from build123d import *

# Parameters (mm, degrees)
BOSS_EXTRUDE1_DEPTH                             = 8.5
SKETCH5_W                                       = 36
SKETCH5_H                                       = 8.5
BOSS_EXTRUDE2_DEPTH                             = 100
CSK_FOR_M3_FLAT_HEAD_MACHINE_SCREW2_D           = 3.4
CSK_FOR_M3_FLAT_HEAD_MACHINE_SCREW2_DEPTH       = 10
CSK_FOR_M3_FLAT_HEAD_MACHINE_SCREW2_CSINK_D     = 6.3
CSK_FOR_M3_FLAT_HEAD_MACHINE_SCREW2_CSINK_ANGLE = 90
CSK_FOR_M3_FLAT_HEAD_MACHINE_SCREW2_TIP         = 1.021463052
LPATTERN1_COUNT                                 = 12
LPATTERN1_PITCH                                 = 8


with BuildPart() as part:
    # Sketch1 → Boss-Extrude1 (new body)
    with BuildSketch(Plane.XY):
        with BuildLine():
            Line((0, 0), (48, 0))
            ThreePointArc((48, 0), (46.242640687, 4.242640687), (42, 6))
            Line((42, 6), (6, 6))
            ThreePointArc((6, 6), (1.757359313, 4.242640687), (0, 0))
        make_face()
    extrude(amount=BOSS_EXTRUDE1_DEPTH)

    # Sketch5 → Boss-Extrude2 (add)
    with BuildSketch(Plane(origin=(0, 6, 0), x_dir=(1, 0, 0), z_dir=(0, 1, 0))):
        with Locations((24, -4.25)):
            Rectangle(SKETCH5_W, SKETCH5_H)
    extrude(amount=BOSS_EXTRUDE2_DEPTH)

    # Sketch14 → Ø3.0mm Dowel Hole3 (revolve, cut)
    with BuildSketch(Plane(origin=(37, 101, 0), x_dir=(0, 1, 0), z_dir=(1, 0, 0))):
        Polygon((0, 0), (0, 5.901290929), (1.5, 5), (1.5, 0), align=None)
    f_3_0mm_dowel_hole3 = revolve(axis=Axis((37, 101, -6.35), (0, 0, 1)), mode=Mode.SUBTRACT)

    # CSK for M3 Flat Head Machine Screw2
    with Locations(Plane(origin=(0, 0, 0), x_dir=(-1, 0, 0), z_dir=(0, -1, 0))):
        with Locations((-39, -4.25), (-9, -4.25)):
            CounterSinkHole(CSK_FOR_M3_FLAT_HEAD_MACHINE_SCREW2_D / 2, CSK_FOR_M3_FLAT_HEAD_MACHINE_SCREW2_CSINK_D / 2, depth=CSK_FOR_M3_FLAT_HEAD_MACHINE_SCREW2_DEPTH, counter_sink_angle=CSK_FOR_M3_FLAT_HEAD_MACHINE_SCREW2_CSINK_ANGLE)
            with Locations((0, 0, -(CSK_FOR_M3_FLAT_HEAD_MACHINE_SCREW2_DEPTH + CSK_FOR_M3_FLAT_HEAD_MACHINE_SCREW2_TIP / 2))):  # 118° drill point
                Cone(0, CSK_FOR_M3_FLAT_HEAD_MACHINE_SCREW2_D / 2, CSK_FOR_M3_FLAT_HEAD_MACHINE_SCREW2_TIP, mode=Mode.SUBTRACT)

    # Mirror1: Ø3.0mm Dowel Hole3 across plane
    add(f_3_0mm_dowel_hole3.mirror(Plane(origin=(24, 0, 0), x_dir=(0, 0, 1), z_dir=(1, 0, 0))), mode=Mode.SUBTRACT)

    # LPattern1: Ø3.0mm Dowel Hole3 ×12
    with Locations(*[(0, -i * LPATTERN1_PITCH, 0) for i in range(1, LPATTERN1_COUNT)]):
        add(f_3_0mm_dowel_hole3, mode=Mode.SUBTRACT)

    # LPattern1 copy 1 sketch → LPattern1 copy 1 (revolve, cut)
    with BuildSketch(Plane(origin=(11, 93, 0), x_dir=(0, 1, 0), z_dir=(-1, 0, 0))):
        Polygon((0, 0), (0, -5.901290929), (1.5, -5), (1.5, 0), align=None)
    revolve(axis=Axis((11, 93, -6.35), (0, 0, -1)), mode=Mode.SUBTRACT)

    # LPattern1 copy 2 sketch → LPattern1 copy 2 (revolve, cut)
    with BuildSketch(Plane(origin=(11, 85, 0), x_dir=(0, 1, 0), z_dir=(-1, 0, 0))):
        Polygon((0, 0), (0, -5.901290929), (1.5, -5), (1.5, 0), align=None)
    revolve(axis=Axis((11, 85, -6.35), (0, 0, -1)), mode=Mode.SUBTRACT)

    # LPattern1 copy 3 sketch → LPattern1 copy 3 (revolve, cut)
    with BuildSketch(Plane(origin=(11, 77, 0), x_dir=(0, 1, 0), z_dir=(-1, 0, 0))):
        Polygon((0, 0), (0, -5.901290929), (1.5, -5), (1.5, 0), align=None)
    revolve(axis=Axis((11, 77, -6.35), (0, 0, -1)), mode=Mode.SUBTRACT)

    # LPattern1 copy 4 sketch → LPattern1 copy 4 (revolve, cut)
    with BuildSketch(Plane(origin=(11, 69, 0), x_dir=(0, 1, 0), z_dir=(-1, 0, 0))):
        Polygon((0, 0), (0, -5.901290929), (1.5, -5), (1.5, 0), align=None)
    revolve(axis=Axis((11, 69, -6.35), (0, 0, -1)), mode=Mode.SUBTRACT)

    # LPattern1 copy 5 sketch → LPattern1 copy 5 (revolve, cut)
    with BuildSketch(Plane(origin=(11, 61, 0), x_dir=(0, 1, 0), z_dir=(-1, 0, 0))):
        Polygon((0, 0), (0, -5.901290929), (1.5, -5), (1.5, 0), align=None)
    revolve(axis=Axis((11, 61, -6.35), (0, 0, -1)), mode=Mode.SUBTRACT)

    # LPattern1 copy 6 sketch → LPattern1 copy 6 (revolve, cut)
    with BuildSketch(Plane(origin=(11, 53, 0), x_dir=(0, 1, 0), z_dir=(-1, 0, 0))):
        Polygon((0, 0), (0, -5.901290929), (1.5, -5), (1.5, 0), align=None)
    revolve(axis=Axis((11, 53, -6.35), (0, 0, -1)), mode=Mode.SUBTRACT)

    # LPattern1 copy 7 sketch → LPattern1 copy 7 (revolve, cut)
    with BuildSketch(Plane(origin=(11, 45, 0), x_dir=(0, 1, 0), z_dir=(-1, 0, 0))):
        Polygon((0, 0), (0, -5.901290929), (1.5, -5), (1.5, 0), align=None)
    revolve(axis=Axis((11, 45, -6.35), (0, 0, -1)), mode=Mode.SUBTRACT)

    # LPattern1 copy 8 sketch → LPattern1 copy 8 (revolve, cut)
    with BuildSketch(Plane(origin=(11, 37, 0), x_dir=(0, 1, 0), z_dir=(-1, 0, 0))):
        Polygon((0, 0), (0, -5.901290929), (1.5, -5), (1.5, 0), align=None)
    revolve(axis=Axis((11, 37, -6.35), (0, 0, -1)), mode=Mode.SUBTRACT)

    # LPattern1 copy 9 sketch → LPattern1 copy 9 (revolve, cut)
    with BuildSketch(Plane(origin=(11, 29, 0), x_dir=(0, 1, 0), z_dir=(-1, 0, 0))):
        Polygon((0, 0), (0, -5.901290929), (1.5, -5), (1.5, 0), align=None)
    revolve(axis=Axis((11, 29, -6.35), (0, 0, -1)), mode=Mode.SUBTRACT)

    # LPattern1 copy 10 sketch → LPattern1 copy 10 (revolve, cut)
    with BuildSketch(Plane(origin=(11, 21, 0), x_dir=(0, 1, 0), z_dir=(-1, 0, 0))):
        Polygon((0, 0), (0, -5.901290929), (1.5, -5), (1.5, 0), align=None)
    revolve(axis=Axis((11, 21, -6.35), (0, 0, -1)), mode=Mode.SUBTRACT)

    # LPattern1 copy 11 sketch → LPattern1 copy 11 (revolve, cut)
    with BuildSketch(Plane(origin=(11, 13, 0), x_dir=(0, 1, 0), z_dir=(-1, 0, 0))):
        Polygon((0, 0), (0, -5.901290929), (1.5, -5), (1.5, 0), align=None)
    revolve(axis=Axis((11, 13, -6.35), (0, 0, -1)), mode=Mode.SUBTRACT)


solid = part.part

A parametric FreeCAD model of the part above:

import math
import FreeCAD as App
import Part
import Sketcher
Q = App.Units.Quantity

doc = App.newDocument("Part")
body = doc.addObject("PartDesign::Body", "Body")

# Sketch on XY plane
sketch1 = doc.addObject("Sketcher::SketchObject", "Sketch")
body.addObject(sketch1)
sketch1.AttachmentSupport = (doc.XY_Plane, [""])
sketch1.MapMode = "FlatFace"
sketch1.addGeometry([
    Part.LineSegment(App.Vector(0, 0, 0), App.Vector(48, 0, 0)),
    Part.ArcOfCircle(Part.Circle(App.Vector(42, 0, 0), App.Vector(0, 0, 1), 6), math.radians(0), math.radians(90)),
    Part.LineSegment(App.Vector(42, 6, 0), App.Vector(6, 6, 0)),
    Part.ArcOfCircle(Part.Circle(App.Vector(6, 0, 0), App.Vector(0, 0, 1), 6), math.radians(90), math.radians(180)),
], False)
sketch1.addConstraint([
    Sketcher.Constraint("Coincident", 0, 2, 1, 1),
    Sketcher.Constraint("Tangent", 1, 2, 2, 1),
    Sketcher.Constraint("Tangent", 2, 2, 3, 1),
    Sketcher.Constraint("Coincident", 3, 2, 0, 1),
    Sketcher.Constraint("Horizontal", 0),
    Sketcher.Constraint("Horizontal", 2),
    Sketcher.Constraint("Coincident", 3, 2, -1, 1),
    Sketcher.Constraint("Equal", 1, 3),
    Sketcher.Constraint("PointOnObject", 1, 3, -1),
    Sketcher.Constraint("Radius", 1, 6.0),
    Sketcher.Constraint("DistanceX", 0, 1, 0, 2, 48.0),
])
pad1 = doc.addObject("PartDesign::Pad", "Pad")
body.addObject(pad1)
pad1.Profile = sketch1
pad1.Length = 8.5

# Sketch on XZ plane
sketch2 = doc.addObject("Sketcher::SketchObject", "Sketch001")
body.addObject(sketch2)
sketch2.AttachmentSupport = (doc.XZ_Plane, [""])
sketch2.MapMode = "FlatFace"
sketch2.AttachmentOffset = App.Placement(App.Vector(0, 0, -6), App.Rotation())
sketch2.addGeometry([
    Part.LineSegment(App.Vector(6, 0, 0), App.Vector(6, 8, 0)),
    Part.LineSegment(App.Vector(6, 8, 0), App.Vector(42, 8, 0)),
    Part.LineSegment(App.Vector(42, 8, 0), App.Vector(42, 0, 0)),
    Part.LineSegment(App.Vector(42, 0, 0), App.Vector(6, 0, 0)),
], False)
sketch2.addConstraint([
    Sketcher.Constraint("Coincident", 0, 2, 1, 1),
    Sketcher.Constraint("Coincident", 1, 2, 2, 1),
    Sketcher.Constraint("Coincident", 2, 2, 3, 1),
    Sketcher.Constraint("Coincident", 3, 2, 0, 1),
    Sketcher.Constraint("Vertical", 0),
    Sketcher.Constraint("Horizontal", 1),
    Sketcher.Constraint("Vertical", 2),
    Sketcher.Constraint("Horizontal", 3),
    Sketcher.Constraint("PointOnObject", 2, 2, -1),
    Sketcher.Constraint("DistanceX", 1, 1, 1, 2, 36.0),
    Sketcher.Constraint("DistanceY", 0, 1, 0, 2, 8.5),
    Sketcher.Constraint("DistanceX", -1, 1, 0, 2, 6.0),
])
pad2 = doc.addObject("PartDesign::Pad", "Pad001")
body.addObject(pad2)
pad2.Profile = sketch2
pad2.Length = 100
pad2.Reversed = True

# Sketch on YZ plane
sketch3 = doc.addObject("Sketcher::SketchObject", "Sketch002")
body.addObject(sketch3)
sketch3.AttachmentSupport = (doc.YZ_Plane, [""])
sketch3.MapMode = "FlatFace"
sketch3.AttachmentOffset = App.Placement(App.Vector(0, 0, 37), App.Rotation())
sketch3.addGeometry([
    Part.LineSegment(App.Vector(101, 5.9, 0), App.Vector(101, 0, 0)),
    Part.LineSegment(App.Vector(101, 0, 0), App.Vector(102.5, 0, 0)),
    Part.LineSegment(App.Vector(102.5, 0, 0), App.Vector(102.5, 5, 0)),
    Part.LineSegment(App.Vector(102.5, 5, 0), App.Vector(101, 5.9, 0)),
], False)
sketch3.addGeometry(Part.LineSegment(App.Vector(101, 0, 0), App.Vector(101, 5.9, 0)), True)  # axis
sketch3.addConstraint([
    Sketcher.Constraint("Coincident", 0, 2, 1, 1),
    Sketcher.Constraint("Coincident", 1, 2, 2, 1),
    Sketcher.Constraint("Coincident", 2, 2, 3, 1),
    Sketcher.Constraint("Coincident", 3, 2, 0, 1),
    Sketcher.Constraint("Vertical", 0),
    Sketcher.Constraint("Horizontal", 1),
    Sketcher.Constraint("Vertical", 2),
    Sketcher.Constraint("Vertical", 4),
    Sketcher.Constraint("Coincident", 4, 1, 0, 2),
    Sketcher.Constraint("PointOnObject", 0, 2, -1),
    Sketcher.Constraint("Equal", 0, 4),
    Sketcher.Constraint("DistanceY", 2, 1, 2, 2, 5.0),
    Sketcher.Constraint("Angle", 3, Q("149 deg")),
    Sketcher.Constraint("DistanceX", 1, 1, 1, 2, 1.5),
    Sketcher.Constraint("DistanceX", -1, 1, 0, 2, 101.0),
])
groove = doc.addObject("PartDesign::Groove", "Groove")
body.addObject(groove)
groove.Profile = sketch3
groove.ReferenceAxis = (sketch3, ["Axis0"])
groove.Angle = 360

# Sketch on XZ plane
sketch4 = doc.addObject("Sketcher::SketchObject", "Sketch003")
body.addObject(sketch4)
sketch4.AttachmentSupport = (doc.XZ_Plane, [""])
sketch4.MapMode = "FlatFace"
sketch4.addGeometry([
    Part.Circle(App.Vector(39, 4.2, 0), App.Vector(0, 0, 1), 1.7),
    Part.Circle(App.Vector(9, 4.2, 0), App.Vector(0, 0, 1), 1.7),
], False)
sketch4.addConstraint([
    Sketcher.Constraint("Equal", 0, 1),
    Sketcher.Constraint("Horizontal", 0, 3, 1, 3),
    Sketcher.Constraint("Diameter", 0, 3.4),
    Sketcher.Constraint("DistanceX", -1, 1, 0, 3, 39.0),
    Sketcher.Constraint("DistanceX", -1, 1, 1, 3, 9.0),
    Sketcher.Constraint("DistanceY", -1, 1, 0, 3, 4.25),
])
doc.recompute()
hole = doc.addObject("PartDesign::Hole", "Hole")
body.addObject(hole)
hole.Profile = sketch4
hole.ThreadType = "None"
hole.Diameter = 3.4
hole.DepthType = "Dimension"
hole.Depth = 10
hole.DrillPoint = "Angled"
hole.DrillPointAngle = 118
hole.HoleCutType = "Countersink"
hole.HoleCutDiameter = 6.3
hole.HoleCutCountersinkAngle = 90
doc.recompute()

datumplane = doc.addObject("PartDesign::Plane", "DatumPlane")
body.addObject(datumplane)
datumplane.AttachmentSupport = (doc.YZ_Plane, [""])
datumplane.MapMode = "FlatFace"
datumplane.AttachmentOffset = App.Placement(App.Vector(0, 0, 24), App.Rotation())
mirrored = doc.addObject("PartDesign::Mirrored", "Mirrored")
body.addObject(mirrored)
mirrored.Originals = [groove]
mirrored.MirrorPlane = (datumplane, [""])
body.Tip = mirrored
doc.recompute()

linearpattern = doc.addObject("PartDesign::LinearPattern", "LinearPattern")
body.addObject(linearpattern)
linearpattern.Originals = [groove]
linearpattern.Direction = (doc.Y_Axis, [""])
linearpattern.Mode = "offset"
linearpattern.Offset = 8
linearpattern.Occurrences = 12
linearpattern.Reversed = True
body.Tip = linearpattern

# Sketch on YZ plane
sketch5 = doc.addObject("Sketcher::SketchObject", "Sketch004")
body.addObject(sketch5)
sketch5.AttachmentSupport = (doc.YZ_Plane, [""])
sketch5.MapMode = "FlatFace"
sketch5.AttachmentOffset = App.Placement(App.Vector(0, 0, 11), App.Rotation())
sketch5.addGeometry([
    Part.LineSegment(App.Vector(93, 0, 0), App.Vector(93, 5.9, 0)),
    Part.LineSegment(App.Vector(93, 5.9, 0), App.Vector(94.5, 5, 0)),
    Part.LineSegment(App.Vector(94.5, 5, 0), App.Vector(94.5, 0, 0)),
    Part.LineSegment(App.Vector(94.5, 0, 0), App.Vector(93, 0, 0)),
], False)
sketch5.addGeometry(Part.LineSegment(App.Vector(93, 5.9, 0), App.Vector(93, 0, 0)), True)  # axis
sketch5.addConstraint([
    Sketcher.Constraint("Coincident", 0, 2, 1, 1),
    Sketcher.Constraint("Coincident", 1, 2, 2, 1),
    Sketcher.Constraint("Coincident", 2, 2, 3, 1),
    Sketcher.Constraint("Coincident", 3, 2, 0, 1),
    Sketcher.Constraint("Vertical", 0),
    Sketcher.Constraint("Vertical", 2),
    Sketcher.Constraint("Horizontal", 3),
    Sketcher.Constraint("Vertical", 4),
    Sketcher.Constraint("Coincident", 4, 1, 0, 2),
    Sketcher.Constraint("PointOnObject", 2, 2, -1),
    Sketcher.Constraint("PointOnObject", 4, 2, -1),
    Sketcher.Constraint("DistanceY", 2, 2, 2, 1, 5.0),
    Sketcher.Constraint("Angle", 1, Q("-31 deg")),
    Sketcher.Constraint("DistanceX", 3, 2, 3, 1, 1.5),
    Sketcher.Constraint("DistanceX", -1, 1, 0, 2, 93.0),
])
groove2 = doc.addObject("PartDesign::Groove", "Groove001")
body.addObject(groove2)
groove2.Profile = sketch5
groove2.ReferenceAxis = (sketch5, ["Axis0"])
groove2.Angle = 360

# Sketch on YZ plane
sketch6 = doc.addObject("Sketcher::SketchObject", "Sketch005")
body.addObject(sketch6)
sketch6.AttachmentSupport = (doc.YZ_Plane, [""])
sketch6.MapMode = "FlatFace"
sketch6.AttachmentOffset = App.Placement(App.Vector(0, 0, 11), App.Rotation())
sketch6.addGeometry([
    Part.LineSegment(App.Vector(85, 0, 0), App.Vector(85, 5.9, 0)),
    Part.LineSegment(App.Vector(85, 5.9, 0), App.Vector(86.5, 5, 0)),
    Part.LineSegment(App.Vector(86.5, 5, 0), App.Vector(86.5, 0, 0)),
    Part.LineSegment(App.Vector(86.5, 0, 0), App.Vector(85, 0, 0)),
], False)
sketch6.addGeometry(Part.LineSegment(App.Vector(85, 5.9, 0), App.Vector(85, 0, 0)), True)  # axis
sketch6.addConstraint([
    Sketcher.Constraint("Coincident", 0, 2, 1, 1),
    Sketcher.Constraint("Coincident", 1, 2, 2, 1),
    Sketcher.Constraint("Coincident", 2, 2, 3, 1),
    Sketcher.Constraint("Coincident", 3, 2, 0, 1),
    Sketcher.Constraint("Vertical", 0),
    Sketcher.Constraint("Vertical", 2),
    Sketcher.Constraint("Horizontal", 3),
    Sketcher.Constraint("Vertical", 4),
    Sketcher.Constraint("Coincident", 4, 1, 0, 2),
    Sketcher.Constraint("PointOnObject", 2, 2, -1),
    Sketcher.Constraint("PointOnObject", 4, 2, -1),
    Sketcher.Constraint("DistanceY", 2, 2, 2, 1, 5.0),
    Sketcher.Constraint("Angle", 1, Q("-31 deg")),
    Sketcher.Constraint("DistanceX", 3, 2, 3, 1, 1.5),
    Sketcher.Constraint("DistanceX", -1, 1, 0, 2, 85.0),
])
groove3 = doc.addObject("PartDesign::Groove", "Groove002")
body.addObject(groove3)
groove3.Profile = sketch6
groove3.ReferenceAxis = (sketch6, ["Axis0"])
groove3.Angle = 360

# Sketch on YZ plane
sketch7 = doc.addObject("Sketcher::SketchObject", "Sketch006")
body.addObject(sketch7)
sketch7.AttachmentSupport = (doc.YZ_Plane, [""])
sketch7.MapMode = "FlatFace"
sketch7.AttachmentOffset = App.Placement(App.Vector(0, 0, 11), App.Rotation())
sketch7.addGeometry([
    Part.LineSegment(App.Vector(77, 0, 0), App.Vector(77, 5.9, 0)),
    Part.LineSegment(App.Vector(77, 5.9, 0), App.Vector(78.5, 5, 0)),
    Part.LineSegment(App.Vector(78.5, 5, 0), App.Vector(78.5, 0, 0)),
    Part.LineSegment(App.Vector(78.5, 0, 0), App.Vector(77, 0, 0)),
], False)
sketch7.addGeometry(Part.LineSegment(App.Vector(77, 5.9, 0), App.Vector(77, 0, 0)), True)  # axis
sketch7.addConstraint([
    Sketcher.Constraint("Coincident", 0, 2, 1, 1),
    Sketcher.Constraint("Coincident", 1, 2, 2, 1),
    Sketcher.Constraint("Coincident", 2, 2, 3, 1),
    Sketcher.Constraint("Coincident", 3, 2, 0, 1),
    Sketcher.Constraint("Vertical", 0),
    Sketcher.Constraint("Vertical", 2),
    Sketcher.Constraint("Horizontal", 3),
    Sketcher.Constraint("Vertical", 4),
    Sketcher.Constraint("Coincident", 4, 1, 0, 2),
    Sketcher.Constraint("PointOnObject", 2, 2, -1),
    Sketcher.Constraint("PointOnObject", 4, 2, -1),
    Sketcher.Constraint("DistanceY", 2, 2, 2, 1, 5.0),
    Sketcher.Constraint("Angle", 1, Q("-31 deg")),
    Sketcher.Constraint("DistanceX", 3, 2, 3, 1, 1.5),
    Sketcher.Constraint("DistanceX", -1, 1, 0, 2, 77.0),
])
groove4 = doc.addObject("PartDesign::Groove", "Groove003")
body.addObject(groove4)
groove4.Profile = sketch7
groove4.ReferenceAxis = (sketch7, ["Axis0"])
groove4.Angle = 360

# Sketch on YZ plane
sketch8 = doc.addObject("Sketcher::SketchObject", "Sketch007")
body.addObject(sketch8)
sketch8.AttachmentSupport = (doc.YZ_Plane, [""])
sketch8.MapMode = "FlatFace"
sketch8.AttachmentOffset = App.Placement(App.Vector(0, 0, 11), App.Rotation())
sketch8.addGeometry([
    Part.LineSegment(App.Vector(69, 0, 0), App.Vector(69, 5.9, 0)),
    Part.LineSegment(App.Vector(69, 5.9, 0), App.Vector(70.5, 5, 0)),
    Part.LineSegment(App.Vector(70.5, 5, 0), App.Vector(70.5, 0, 0)),
    Part.LineSegment(App.Vector(70.5, 0, 0), App.Vector(69, 0, 0)),
], False)
sketch8.addGeometry(Part.LineSegment(App.Vector(69, 5.9, 0), App.Vector(69, 0, 0)), True)  # axis
sketch8.addConstraint([
    Sketcher.Constraint("Coincident", 0, 2, 1, 1),
    Sketcher.Constraint("Coincident", 1, 2, 2, 1),
    Sketcher.Constraint("Coincident", 2, 2, 3, 1),
    Sketcher.Constraint("Coincident", 3, 2, 0, 1),
    Sketcher.Constraint("Vertical", 0),
    Sketcher.Constraint("Vertical", 2),
    Sketcher.Constraint("Horizontal", 3),
    Sketcher.Constraint("Vertical", 4),
    Sketcher.Constraint("Coincident", 4, 1, 0, 2),
    Sketcher.Constraint("PointOnObject", 2, 2, -1),
    Sketcher.Constraint("PointOnObject", 4, 2, -1),
    Sketcher.Constraint("DistanceY", 2, 2, 2, 1, 5.0),
    Sketcher.Constraint("Angle", 1, Q("-31 deg")),
    Sketcher.Constraint("DistanceX", 3, 2, 3, 1, 1.5),
    Sketcher.Constraint("DistanceX", -1, 1, 0, 2, 69.0),
])
groove5 = doc.addObject("PartDesign::Groove", "Groove004")
body.addObject(groove5)
groove5.Profile = sketch8
groove5.ReferenceAxis = (sketch8, ["Axis0"])
groove5.Angle = 360

# Sketch on YZ plane
sketch9 = doc.addObject("Sketcher::SketchObject", "Sketch008")
body.addObject(sketch9)
sketch9.AttachmentSupport = (doc.YZ_Plane, [""])
sketch9.MapMode = "FlatFace"
sketch9.AttachmentOffset = App.Placement(App.Vector(0, 0, 11), App.Rotation())
sketch9.addGeometry([
    Part.LineSegment(App.Vector(61, 0, 0), App.Vector(61, 5.9, 0)),
    Part.LineSegment(App.Vector(61, 5.9, 0), App.Vector(62.5, 5, 0)),
    Part.LineSegment(App.Vector(62.5, 5, 0), App.Vector(62.5, 0, 0)),
    Part.LineSegment(App.Vector(62.5, 0, 0), App.Vector(61, 0, 0)),
], False)
sketch9.addGeometry(Part.LineSegment(App.Vector(61, 5.9, 0), App.Vector(61, 0, 0)), True)  # axis
sketch9.addConstraint([
    Sketcher.Constraint("Coincident", 0, 2, 1, 1),
    Sketcher.Constraint("Coincident", 1, 2, 2, 1),
    Sketcher.Constraint("Coincident", 2, 2, 3, 1),
    Sketcher.Constraint("Coincident", 3, 2, 0, 1),
    Sketcher.Constraint("Vertical", 0),
    Sketcher.Constraint("Vertical", 2),
    Sketcher.Constraint("Horizontal", 3),
    Sketcher.Constraint("Vertical", 4),
    Sketcher.Constraint("Coincident", 4, 1, 0, 2),
    Sketcher.Constraint("PointOnObject", 2, 2, -1),
    Sketcher.Constraint("PointOnObject", 4, 2, -1),
    Sketcher.Constraint("DistanceY", 2, 2, 2, 1, 5.0),
    Sketcher.Constraint("Angle", 1, Q("-31 deg")),
    Sketcher.Constraint("DistanceX", 3, 2, 3, 1, 1.5),
    Sketcher.Constraint("DistanceX", -1, 1, 0, 2, 61.0),
])
groove6 = doc.addObject("PartDesign::Groove", "Groove005")
body.addObject(groove6)
groove6.Profile = sketch9
groove6.ReferenceAxis = (sketch9, ["Axis0"])
groove6.Angle = 360

# Sketch on YZ plane
sketch10 = doc.addObject("Sketcher::SketchObject", "Sketch009")
body.addObject(sketch10)
sketch10.AttachmentSupport = (doc.YZ_Plane, [""])
sketch10.MapMode = "FlatFace"
sketch10.AttachmentOffset = App.Placement(App.Vector(0, 0, 11), App.Rotation())
sketch10.addGeometry([
    Part.LineSegment(App.Vector(53, 0, 0), App.Vector(53, 5.9, 0)),
    Part.LineSegment(App.Vector(53, 5.9, 0), App.Vector(54.5, 5, 0)),
    Part.LineSegment(App.Vector(54.5, 5, 0), App.Vector(54.5, 0, 0)),
    Part.LineSegment(App.Vector(54.5, 0, 0), App.Vector(53, 0, 0)),
], False)
sketch10.addGeometry(Part.LineSegment(App.Vector(53, 5.9, 0), App.Vector(53, 0, 0)), True)  # axis
sketch10.addConstraint([
    Sketcher.Constraint("Coincident", 0, 2, 1, 1),
    Sketcher.Constraint("Coincident", 1, 2, 2, 1),
    Sketcher.Constraint("Coincident", 2, 2, 3, 1),
    Sketcher.Constraint("Coincident", 3, 2, 0, 1),
    Sketcher.Constraint("Vertical", 0),
    Sketcher.Constraint("Vertical", 2),
    Sketcher.Constraint("Horizontal", 3),
    Sketcher.Constraint("Vertical", 4),
    Sketcher.Constraint("Coincident", 4, 1, 0, 2),
    Sketcher.Constraint("PointOnObject", 2, 2, -1),
    Sketcher.Constraint("PointOnObject", 4, 2, -1),
    Sketcher.Constraint("DistanceY", 2, 2, 2, 1, 5.0),
    Sketcher.Constraint("Angle", 1, Q("-31 deg")),
    Sketcher.Constraint("DistanceX", 3, 2, 3, 1, 1.5),
    Sketcher.Constraint("DistanceX", -1, 1, 0, 2, 53.0),
])
groove7 = doc.addObject("PartDesign::Groove", "Groove006")
body.addObject(groove7)
groove7.Profile = sketch10
groove7.ReferenceAxis = (sketch10, ["Axis0"])
groove7.Angle = 360

# Sketch on YZ plane
sketch11 = doc.addObject("Sketcher::SketchObject", "Sketch010")
body.addObject(sketch11)
sketch11.AttachmentSupport = (doc.YZ_Plane, [""])
sketch11.MapMode = "FlatFace"
sketch11.AttachmentOffset = App.Placement(App.Vector(0, 0, 11), App.Rotation())
sketch11.addGeometry([
    Part.LineSegment(App.Vector(45, 0, 0), App.Vector(45, 5.9, 0)),
    Part.LineSegment(App.Vector(45, 5.9, 0), App.Vector(46.5, 5, 0)),
    Part.LineSegment(App.Vector(46.5, 5, 0), App.Vector(46.5, 0, 0)),
    Part.LineSegment(App.Vector(46.5, 0, 0), App.Vector(45, 0, 0)),
], False)
sketch11.addGeometry(Part.LineSegment(App.Vector(45, 5.9, 0), App.Vector(45, 0, 0)), True)  # axis
sketch11.addConstraint([
    Sketcher.Constraint("Coincident", 0, 2, 1, 1),
    Sketcher.Constraint("Coincident", 1, 2, 2, 1),
    Sketcher.Constraint("Coincident", 2, 2, 3, 1),
    Sketcher.Constraint("Coincident", 3, 2, 0, 1),
    Sketcher.Constraint("Vertical", 0),
    Sketcher.Constraint("Vertical", 2),
    Sketcher.Constraint("Horizontal", 3),
    Sketcher.Constraint("Vertical", 4),
    Sketcher.Constraint("Coincident", 4, 1, 0, 2),
    Sketcher.Constraint("PointOnObject", 2, 2, -1),
    Sketcher.Constraint("PointOnObject", 4, 2, -1),
    Sketcher.Constraint("DistanceY", 2, 2, 2, 1, 5.0),
    Sketcher.Constraint("Angle", 1, Q("-31 deg")),
    Sketcher.Constraint("DistanceX", 3, 2, 3, 1, 1.5),
    Sketcher.Constraint("DistanceX", -1, 1, 0, 2, 45.0),
])
groove8 = doc.addObject("PartDesign::Groove", "Groove007")
body.addObject(groove8)
groove8.Profile = sketch11
groove8.ReferenceAxis = (sketch11, ["Axis0"])
groove8.Angle = 360

# Sketch on YZ plane
sketch12 = doc.addObject("Sketcher::SketchObject", "Sketch011")
body.addObject(sketch12)
sketch12.AttachmentSupport = (doc.YZ_Plane, [""])
sketch12.MapMode = "FlatFace"
sketch12.AttachmentOffset = App.Placement(App.Vector(0, 0, 11), App.Rotation())
sketch12.addGeometry([
    Part.LineSegment(App.Vector(37, 0, 0), App.Vector(37, 5.9, 0)),
    Part.LineSegment(App.Vector(37, 5.9, 0), App.Vector(38.5, 5, 0)),
    Part.LineSegment(App.Vector(38.5, 5, 0), App.Vector(38.5, 0, 0)),
    Part.LineSegment(App.Vector(38.5, 0, 0), App.Vector(37, 0, 0)),
], False)
sketch12.addGeometry(Part.LineSegment(App.Vector(37, 5.9, 0), App.Vector(37, 0, 0)), True)  # axis
sketch12.addConstraint([
    Sketcher.Constraint("Coincident", 0, 2, 1, 1),
    Sketcher.Constraint("Coincident", 1, 2, 2, 1),
    Sketcher.Constraint("Coincident", 2, 2, 3, 1),
    Sketcher.Constraint("Coincident", 3, 2, 0, 1),
    Sketcher.Constraint("Vertical", 0),
    Sketcher.Constraint("Vertical", 2),
    Sketcher.Constraint("Horizontal", 3),
    Sketcher.Constraint("Vertical", 4),
    Sketcher.Constraint("Coincident", 4, 1, 0, 2),
    Sketcher.Constraint("PointOnObject", 2, 2, -1),
    Sketcher.Constraint("PointOnObject", 4, 2, -1),
    Sketcher.Constraint("DistanceY", 2, 2, 2, 1, 5.0),
    Sketcher.Constraint("Angle", 1, Q("-31 deg")),
    Sketcher.Constraint("DistanceX", 3, 2, 3, 1, 1.5),
    Sketcher.Constraint("DistanceX", -1, 1, 0, 2, 37.0),
])
groove9 = doc.addObject("PartDesign::Groove", "Groove008")
body.addObject(groove9)
groove9.Profile = sketch12
groove9.ReferenceAxis = (sketch12, ["Axis0"])
groove9.Angle = 360

# Sketch on YZ plane
sketch13 = doc.addObject("Sketcher::SketchObject", "Sketch012")
body.addObject(sketch13)
sketch13.AttachmentSupport = (doc.YZ_Plane, [""])
sketch13.MapMode = "FlatFace"
sketch13.AttachmentOffset = App.Placement(App.Vector(0, 0, 11), App.Rotation())
sketch13.addGeometry([
    Part.LineSegment(App.Vector(29, 0, 0), App.Vector(29, 5.9, 0)),
    Part.LineSegment(App.Vector(29, 5.9, 0), App.Vector(30.5, 5, 0)),
    Part.LineSegment(App.Vector(30.5, 5, 0), App.Vector(30.5, 0, 0)),
    Part.LineSegment(App.Vector(30.5, 0, 0), App.Vector(29, 0, 0)),
], False)
sketch13.addGeometry(Part.LineSegment(App.Vector(29, 5.9, 0), App.Vector(29, 0, 0)), True)  # axis
sketch13.addConstraint([
    Sketcher.Constraint("Coincident", 0, 2, 1, 1),
    Sketcher.Constraint("Coincident", 1, 2, 2, 1),
    Sketcher.Constraint("Coincident", 2, 2, 3, 1),
    Sketcher.Constraint("Coincident", 3, 2, 0, 1),
    Sketcher.Constraint("Vertical", 0),
    Sketcher.Constraint("Vertical", 2),
    Sketcher.Constraint("Horizontal", 3),
    Sketcher.Constraint("Vertical", 4),
    Sketcher.Constraint("Coincident", 4, 1, 0, 2),
    Sketcher.Constraint("PointOnObject", 2, 2, -1),
    Sketcher.Constraint("PointOnObject", 4, 2, -1),
    Sketcher.Constraint("DistanceY", 2, 2, 2, 1, 5.0),
    Sketcher.Constraint("Angle", 1, Q("-31 deg")),
    Sketcher.Constraint("DistanceX", 3, 2, 3, 1, 1.5),
    Sketcher.Constraint("DistanceX", -1, 1, 0, 2, 29.0),
])
groove10 = doc.addObject("PartDesign::Groove", "Groove009")
body.addObject(groove10)
groove10.Profile = sketch13
groove10.ReferenceAxis = (sketch13, ["Axis0"])
groove10.Angle = 360

# Sketch on YZ plane
sketch14 = doc.addObject("Sketcher::SketchObject", "Sketch013")
body.addObject(sketch14)
sketch14.AttachmentSupport = (doc.YZ_Plane, [""])
sketch14.MapMode = "FlatFace"
sketch14.AttachmentOffset = App.Placement(App.Vector(0, 0, 11), App.Rotation())
sketch14.addGeometry([
    Part.LineSegment(App.Vector(21, 0, 0), App.Vector(21, 5.9, 0)),
    Part.LineSegment(App.Vector(21, 5.9, 0), App.Vector(22.5, 5, 0)),
    Part.LineSegment(App.Vector(22.5, 5, 0), App.Vector(22.5, 0, 0)),
    Part.LineSegment(App.Vector(22.5, 0, 0), App.Vector(21, 0, 0)),
], False)
sketch14.addGeometry(Part.LineSegment(App.Vector(21, 5.9, 0), App.Vector(21, 0, 0)), True)  # axis
sketch14.addConstraint([
    Sketcher.Constraint("Coincident", 0, 2, 1, 1),
    Sketcher.Constraint("Coincident", 1, 2, 2, 1),
    Sketcher.Constraint("Coincident", 2, 2, 3, 1),
    Sketcher.Constraint("Coincident", 3, 2, 0, 1),
    Sketcher.Constraint("Vertical", 0),
    Sketcher.Constraint("Vertical", 2),
    Sketcher.Constraint("Horizontal", 3),
    Sketcher.Constraint("Vertical", 4),
    Sketcher.Constraint("Coincident", 4, 1, 0, 2),
    Sketcher.Constraint("PointOnObject", 2, 2, -1),
    Sketcher.Constraint("PointOnObject", 4, 2, -1),
    Sketcher.Constraint("DistanceY", 2, 2, 2, 1, 5.0),
    Sketcher.Constraint("Angle", 1, Q("-31 deg")),
    Sketcher.Constraint("DistanceX", 3, 2, 3, 1, 1.5),
    Sketcher.Constraint("DistanceX", -1, 1, 0, 2, 21.0),
])
groove11 = doc.addObject("PartDesign::Groove", "Groove010")
body.addObject(groove11)
groove11.Profile = sketch14
groove11.ReferenceAxis = (sketch14, ["Axis0"])
groove11.Angle = 360

# Sketch on YZ plane
sketch15 = doc.addObject("Sketcher::SketchObject", "Sketch014")
body.addObject(sketch15)
sketch15.AttachmentSupport = (doc.YZ_Plane, [""])
sketch15.MapMode = "FlatFace"
sketch15.AttachmentOffset = App.Placement(App.Vector(0, 0, 11), App.Rotation())
sketch15.addGeometry([
    Part.LineSegment(App.Vector(13, 0, 0), App.Vector(13, 5.9, 0)),
    Part.LineSegment(App.Vector(13, 5.9, 0), App.Vector(14.5, 5, 0)),
    Part.LineSegment(App.Vector(14.5, 5, 0), App.Vector(14.5, 0, 0)),
    Part.LineSegment(App.Vector(14.5, 0, 0), App.Vector(13, 0, 0)),
], False)
sketch15.addGeometry(Part.LineSegment(App.Vector(13, 5.9, 0), App.Vector(13, 0, 0)), True)  # axis
sketch15.addConstraint([
    Sketcher.Constraint("Coincident", 0, 2, 1, 1),
    Sketcher.Constraint("Coincident", 1, 2, 2, 1),
    Sketcher.Constraint("Coincident", 2, 2, 3, 1),
    Sketcher.Constraint("Coincident", 3, 2, 0, 1),
    Sketcher.Constraint("Vertical", 0),
    Sketcher.Constraint("Vertical", 2),
    Sketcher.Constraint("Horizontal", 3),
    Sketcher.Constraint("Vertical", 4),
    Sketcher.Constraint("Coincident", 4, 1, 0, 2),
    Sketcher.Constraint("PointOnObject", 2, 2, -1),
    Sketcher.Constraint("PointOnObject", 4, 2, -1),
    Sketcher.Constraint("DistanceY", 2, 2, 2, 1, 5.0),
    Sketcher.Constraint("Angle", 1, Q("-31 deg")),
    Sketcher.Constraint("DistanceX", 3, 2, 3, 1, 1.5),
    Sketcher.Constraint("DistanceX", -1, 1, 0, 2, 13.0),
])
groove12 = doc.addObject("PartDesign::Groove", "Groove011")
body.addObject(groove12)
groove12.Profile = sketch15
groove12.ReferenceAxis = (sketch15, ["Axis0"])
groove12.Angle = 360

doc.recompute()
